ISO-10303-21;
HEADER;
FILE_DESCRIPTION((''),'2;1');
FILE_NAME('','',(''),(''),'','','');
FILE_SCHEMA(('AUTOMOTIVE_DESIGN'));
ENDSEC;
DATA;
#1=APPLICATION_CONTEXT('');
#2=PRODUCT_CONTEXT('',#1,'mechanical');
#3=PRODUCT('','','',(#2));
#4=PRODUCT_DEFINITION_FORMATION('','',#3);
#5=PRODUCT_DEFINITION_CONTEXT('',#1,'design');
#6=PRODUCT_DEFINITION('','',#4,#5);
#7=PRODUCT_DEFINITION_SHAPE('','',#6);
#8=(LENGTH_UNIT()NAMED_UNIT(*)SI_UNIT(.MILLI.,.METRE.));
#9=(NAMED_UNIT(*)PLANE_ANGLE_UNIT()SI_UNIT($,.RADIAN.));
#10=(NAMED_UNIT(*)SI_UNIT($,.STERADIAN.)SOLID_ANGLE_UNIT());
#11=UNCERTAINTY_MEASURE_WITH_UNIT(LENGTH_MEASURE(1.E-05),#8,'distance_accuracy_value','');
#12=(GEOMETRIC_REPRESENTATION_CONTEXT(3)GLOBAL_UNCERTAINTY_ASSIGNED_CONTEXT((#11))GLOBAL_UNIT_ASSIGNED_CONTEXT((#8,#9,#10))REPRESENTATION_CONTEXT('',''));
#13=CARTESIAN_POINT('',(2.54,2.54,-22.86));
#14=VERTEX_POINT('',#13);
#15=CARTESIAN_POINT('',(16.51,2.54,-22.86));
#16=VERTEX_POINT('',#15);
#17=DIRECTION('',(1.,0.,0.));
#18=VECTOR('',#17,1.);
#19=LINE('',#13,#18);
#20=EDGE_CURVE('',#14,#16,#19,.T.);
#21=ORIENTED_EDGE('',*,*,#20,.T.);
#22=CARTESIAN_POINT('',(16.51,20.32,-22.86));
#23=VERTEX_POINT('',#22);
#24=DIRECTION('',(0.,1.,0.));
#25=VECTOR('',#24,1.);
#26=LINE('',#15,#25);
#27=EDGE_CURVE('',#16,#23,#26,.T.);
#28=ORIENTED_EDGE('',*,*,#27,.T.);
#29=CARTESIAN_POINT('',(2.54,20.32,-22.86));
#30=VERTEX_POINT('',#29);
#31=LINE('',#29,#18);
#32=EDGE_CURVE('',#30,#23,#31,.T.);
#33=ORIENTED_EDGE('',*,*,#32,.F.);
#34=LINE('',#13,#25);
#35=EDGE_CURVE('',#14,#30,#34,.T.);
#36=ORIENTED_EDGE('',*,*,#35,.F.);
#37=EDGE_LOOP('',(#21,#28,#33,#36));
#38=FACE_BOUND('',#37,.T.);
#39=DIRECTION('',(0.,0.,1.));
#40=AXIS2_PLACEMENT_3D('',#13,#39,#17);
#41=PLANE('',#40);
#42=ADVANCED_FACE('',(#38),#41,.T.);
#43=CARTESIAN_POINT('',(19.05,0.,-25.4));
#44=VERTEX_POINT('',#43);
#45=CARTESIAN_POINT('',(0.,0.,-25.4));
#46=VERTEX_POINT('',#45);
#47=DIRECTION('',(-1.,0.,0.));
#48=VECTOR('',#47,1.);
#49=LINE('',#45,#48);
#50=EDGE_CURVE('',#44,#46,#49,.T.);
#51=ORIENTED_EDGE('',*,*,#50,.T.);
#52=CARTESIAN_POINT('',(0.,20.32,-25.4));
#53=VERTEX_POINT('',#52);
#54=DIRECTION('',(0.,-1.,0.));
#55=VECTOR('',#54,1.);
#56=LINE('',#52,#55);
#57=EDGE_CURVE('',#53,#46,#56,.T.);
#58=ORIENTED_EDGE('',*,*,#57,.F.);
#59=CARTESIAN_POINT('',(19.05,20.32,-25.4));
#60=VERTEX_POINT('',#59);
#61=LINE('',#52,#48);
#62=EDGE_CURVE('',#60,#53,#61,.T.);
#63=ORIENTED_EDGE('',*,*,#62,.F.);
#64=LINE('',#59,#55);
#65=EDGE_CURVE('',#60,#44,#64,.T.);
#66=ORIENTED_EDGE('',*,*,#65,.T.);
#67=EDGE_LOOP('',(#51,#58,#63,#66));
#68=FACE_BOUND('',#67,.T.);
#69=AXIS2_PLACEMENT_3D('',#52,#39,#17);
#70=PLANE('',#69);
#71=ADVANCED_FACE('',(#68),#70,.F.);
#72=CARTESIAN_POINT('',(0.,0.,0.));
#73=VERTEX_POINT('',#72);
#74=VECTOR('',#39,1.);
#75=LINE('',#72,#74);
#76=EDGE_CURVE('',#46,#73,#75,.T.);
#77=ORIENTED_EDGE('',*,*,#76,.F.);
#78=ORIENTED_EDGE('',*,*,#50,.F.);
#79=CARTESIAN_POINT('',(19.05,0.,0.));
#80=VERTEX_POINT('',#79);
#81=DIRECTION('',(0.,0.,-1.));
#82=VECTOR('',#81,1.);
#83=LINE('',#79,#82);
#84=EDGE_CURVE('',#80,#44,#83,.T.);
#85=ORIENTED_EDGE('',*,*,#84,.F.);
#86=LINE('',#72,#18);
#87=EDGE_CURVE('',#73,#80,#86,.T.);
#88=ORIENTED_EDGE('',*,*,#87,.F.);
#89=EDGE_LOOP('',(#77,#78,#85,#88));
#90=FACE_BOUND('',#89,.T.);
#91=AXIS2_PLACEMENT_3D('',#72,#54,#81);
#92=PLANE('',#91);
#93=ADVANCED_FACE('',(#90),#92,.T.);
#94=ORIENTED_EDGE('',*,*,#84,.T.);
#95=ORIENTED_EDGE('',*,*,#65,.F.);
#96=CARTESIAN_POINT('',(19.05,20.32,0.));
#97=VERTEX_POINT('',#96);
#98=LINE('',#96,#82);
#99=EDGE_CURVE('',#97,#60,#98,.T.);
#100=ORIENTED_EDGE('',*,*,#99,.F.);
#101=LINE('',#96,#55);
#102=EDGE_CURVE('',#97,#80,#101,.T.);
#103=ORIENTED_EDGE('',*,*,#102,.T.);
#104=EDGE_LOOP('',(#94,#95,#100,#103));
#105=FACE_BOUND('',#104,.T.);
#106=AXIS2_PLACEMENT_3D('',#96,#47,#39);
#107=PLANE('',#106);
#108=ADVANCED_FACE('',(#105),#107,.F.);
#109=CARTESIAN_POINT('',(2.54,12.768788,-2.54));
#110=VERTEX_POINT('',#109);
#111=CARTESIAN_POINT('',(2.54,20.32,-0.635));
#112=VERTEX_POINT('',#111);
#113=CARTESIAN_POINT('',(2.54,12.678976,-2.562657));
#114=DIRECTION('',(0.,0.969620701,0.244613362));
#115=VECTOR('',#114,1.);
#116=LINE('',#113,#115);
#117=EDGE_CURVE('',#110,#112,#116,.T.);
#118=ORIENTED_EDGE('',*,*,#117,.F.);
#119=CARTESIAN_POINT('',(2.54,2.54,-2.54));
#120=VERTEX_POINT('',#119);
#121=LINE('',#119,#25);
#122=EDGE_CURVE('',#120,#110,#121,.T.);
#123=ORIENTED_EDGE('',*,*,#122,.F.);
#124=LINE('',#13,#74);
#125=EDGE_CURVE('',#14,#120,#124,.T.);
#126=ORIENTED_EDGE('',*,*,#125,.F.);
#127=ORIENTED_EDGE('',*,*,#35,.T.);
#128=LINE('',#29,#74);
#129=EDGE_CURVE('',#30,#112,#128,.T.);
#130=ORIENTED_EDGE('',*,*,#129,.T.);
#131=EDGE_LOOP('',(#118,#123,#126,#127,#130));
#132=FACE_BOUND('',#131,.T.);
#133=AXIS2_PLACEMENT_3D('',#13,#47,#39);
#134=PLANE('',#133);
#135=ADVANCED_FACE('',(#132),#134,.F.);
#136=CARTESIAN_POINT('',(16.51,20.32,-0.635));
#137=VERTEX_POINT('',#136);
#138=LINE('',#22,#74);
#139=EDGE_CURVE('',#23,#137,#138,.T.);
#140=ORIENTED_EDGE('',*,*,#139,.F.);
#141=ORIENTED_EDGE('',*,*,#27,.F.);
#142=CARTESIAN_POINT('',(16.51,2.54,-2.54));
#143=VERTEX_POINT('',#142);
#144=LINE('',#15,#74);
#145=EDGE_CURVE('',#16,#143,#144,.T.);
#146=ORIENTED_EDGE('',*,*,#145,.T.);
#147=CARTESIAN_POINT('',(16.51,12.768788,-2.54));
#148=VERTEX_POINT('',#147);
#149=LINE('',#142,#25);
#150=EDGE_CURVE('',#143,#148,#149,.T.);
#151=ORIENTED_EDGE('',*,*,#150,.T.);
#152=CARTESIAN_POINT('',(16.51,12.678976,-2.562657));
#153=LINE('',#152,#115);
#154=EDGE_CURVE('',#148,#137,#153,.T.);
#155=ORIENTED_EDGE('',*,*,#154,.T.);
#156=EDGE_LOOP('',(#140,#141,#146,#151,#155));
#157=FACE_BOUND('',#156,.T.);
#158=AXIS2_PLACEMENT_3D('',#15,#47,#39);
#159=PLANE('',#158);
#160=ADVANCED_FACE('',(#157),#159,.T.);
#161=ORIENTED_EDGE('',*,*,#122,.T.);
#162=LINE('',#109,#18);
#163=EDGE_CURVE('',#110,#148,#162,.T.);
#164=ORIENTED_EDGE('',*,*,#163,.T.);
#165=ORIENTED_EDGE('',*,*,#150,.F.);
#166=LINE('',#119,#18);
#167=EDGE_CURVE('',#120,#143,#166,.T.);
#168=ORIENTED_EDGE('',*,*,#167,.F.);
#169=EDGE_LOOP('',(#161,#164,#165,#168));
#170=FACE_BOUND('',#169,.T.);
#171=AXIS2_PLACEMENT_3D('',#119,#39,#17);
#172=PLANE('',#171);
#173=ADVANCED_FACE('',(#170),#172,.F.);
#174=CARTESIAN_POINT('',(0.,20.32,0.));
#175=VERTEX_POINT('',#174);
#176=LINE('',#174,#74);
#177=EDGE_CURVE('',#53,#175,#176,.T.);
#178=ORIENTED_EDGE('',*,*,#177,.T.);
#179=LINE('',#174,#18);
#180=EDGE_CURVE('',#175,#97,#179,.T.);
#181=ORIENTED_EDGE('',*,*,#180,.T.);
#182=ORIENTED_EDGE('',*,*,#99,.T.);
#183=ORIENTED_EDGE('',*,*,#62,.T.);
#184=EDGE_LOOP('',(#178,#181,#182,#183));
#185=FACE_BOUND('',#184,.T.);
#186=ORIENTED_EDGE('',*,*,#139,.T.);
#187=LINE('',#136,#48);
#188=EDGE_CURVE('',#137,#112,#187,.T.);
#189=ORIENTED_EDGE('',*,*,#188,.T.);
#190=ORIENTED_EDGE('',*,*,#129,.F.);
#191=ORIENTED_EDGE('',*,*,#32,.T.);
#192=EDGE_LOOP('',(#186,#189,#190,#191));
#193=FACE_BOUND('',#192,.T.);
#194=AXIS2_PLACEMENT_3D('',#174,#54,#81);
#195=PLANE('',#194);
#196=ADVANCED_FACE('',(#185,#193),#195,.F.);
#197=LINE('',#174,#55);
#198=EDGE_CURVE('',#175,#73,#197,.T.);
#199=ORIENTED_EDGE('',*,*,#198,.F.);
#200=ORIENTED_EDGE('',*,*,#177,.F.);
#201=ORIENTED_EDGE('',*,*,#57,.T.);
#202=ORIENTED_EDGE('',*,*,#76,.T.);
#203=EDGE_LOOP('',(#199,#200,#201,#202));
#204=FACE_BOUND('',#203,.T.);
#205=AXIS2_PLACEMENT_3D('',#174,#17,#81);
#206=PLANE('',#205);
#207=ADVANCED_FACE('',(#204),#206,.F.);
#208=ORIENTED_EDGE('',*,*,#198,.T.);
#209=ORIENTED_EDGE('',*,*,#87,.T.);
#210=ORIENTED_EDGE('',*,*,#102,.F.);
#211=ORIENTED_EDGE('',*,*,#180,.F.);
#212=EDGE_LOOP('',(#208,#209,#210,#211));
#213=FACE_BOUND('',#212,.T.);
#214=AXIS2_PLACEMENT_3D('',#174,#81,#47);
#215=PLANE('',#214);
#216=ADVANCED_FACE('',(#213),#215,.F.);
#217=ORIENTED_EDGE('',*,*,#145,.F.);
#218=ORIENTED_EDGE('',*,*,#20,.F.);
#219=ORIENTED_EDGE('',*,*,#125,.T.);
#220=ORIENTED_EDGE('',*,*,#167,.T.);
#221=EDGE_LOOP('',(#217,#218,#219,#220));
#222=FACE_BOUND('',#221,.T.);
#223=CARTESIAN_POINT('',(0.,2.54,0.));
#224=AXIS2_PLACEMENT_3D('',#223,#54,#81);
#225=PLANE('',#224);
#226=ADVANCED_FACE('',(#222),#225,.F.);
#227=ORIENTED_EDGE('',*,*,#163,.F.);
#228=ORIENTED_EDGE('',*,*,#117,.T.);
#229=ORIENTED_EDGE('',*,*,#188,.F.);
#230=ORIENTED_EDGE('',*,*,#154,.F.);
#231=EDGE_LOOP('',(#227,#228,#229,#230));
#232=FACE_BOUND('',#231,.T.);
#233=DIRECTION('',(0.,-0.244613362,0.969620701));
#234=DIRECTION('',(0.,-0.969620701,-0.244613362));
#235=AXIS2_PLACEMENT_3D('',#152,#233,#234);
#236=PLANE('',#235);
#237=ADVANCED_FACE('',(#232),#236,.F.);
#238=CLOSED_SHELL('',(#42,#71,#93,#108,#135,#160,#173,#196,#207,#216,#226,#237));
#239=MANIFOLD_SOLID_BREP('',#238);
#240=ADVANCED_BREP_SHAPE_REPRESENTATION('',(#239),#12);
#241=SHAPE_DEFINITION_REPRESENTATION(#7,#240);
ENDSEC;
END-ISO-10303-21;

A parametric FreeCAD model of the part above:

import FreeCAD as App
import Part
import Sketcher
from FreeCAD import Vector
Q = App.Units.Quantity

doc = App.newDocument("Part")
body = doc.addObject("PartDesign::Body", "Body")

sketch1 = doc.addObject("Sketcher::SketchObject", "Sketch")
body.addObject(sketch1)
sketch1.AttachmentSupport = (doc.XZ_Plane, [""])
sketch1.MapMode = "FlatFace"
sketch1.addGeometry([
    Part.LineSegment(Vector(0, -25.4, 0), Vector(0, 0, 0)),
    Part.LineSegment(Vector(0, 0, 0), Vector(19.05, 0, 0)),
    Part.LineSegment(Vector(19.05, 0, 0), Vector(19.05, -25.4, 0)),
    Part.LineSegment(Vector(19.05, -25.4, 0), Vector(0, -25.4, 0)),
], False)
sketch1.addConstraint([
    Sketcher.Constraint("Coincident", 0, 2, 1, 1),
    Sketcher.Constraint("Coincident", 1, 2, 2, 1),
    Sketcher.Constraint("Coincident", 2, 2, 3, 1),
    Sketcher.Constraint("Coincident", 3, 2, 0, 1),
    Sketcher.Constraint("Vertical", 0),
    Sketcher.Constraint("Horizontal", 1),
    Sketcher.Constraint("Vertical", 2),
    Sketcher.Constraint("Horizontal", 3),
    Sketcher.Constraint("Coincident", 0, 2, -1, 1),
    Sketcher.Constraint("DistanceY", 0, 1, 0, 2, Q("1 in")),
    Sketcher.Constraint("DistanceX", 1, 1, 1, 2, Q("0.75 in")),
])
pad1 = doc.addObject("PartDesign::Pad", "Pad")
body.addObject(pad1)
pad1.Profile = sketch1
pad1.Length = Q("0.8 in")
pad1.Reversed = True

sketch2 = doc.addObject("Sketcher::SketchObject", "Sketch001")
body.addObject(sketch2)
sketch2.AttachmentSupport = (doc.XZ_Plane, [""])
sketch2.MapMode = "FlatFace"
sketch2.AttachmentOffset = App.Placement(Vector(0, 0, -0.8 * 25.4), App.Rotation())
sketch2.addGeometry([
    Part.LineSegment(Vector(2.54, -22.86, 0), Vector(2.54, -2.54, 0)),
    Part.LineSegment(Vector(2.54, -2.54, 0), Vector(16.51, -2.54, 0)),
    Part.LineSegment(Vector(16.51, -2.54, 0), Vector(16.51, -22.86, 0)),
    Part.LineSegment(Vector(16.51, -22.86, 0), Vector(2.54, -22.86, 0)),
], False)
sketch2.addConstraint([
    Sketcher.Constraint("Coincident", 0, 2, 1, 1),
    Sketcher.Constraint("Coincident", 1, 2, 2, 1),
    Sketcher.Constraint("Coincident", 2, 2, 3, 1),
    Sketcher.Constraint("Coincident", 3, 2, 0, 1),
    Sketcher.Constraint("Vertical", 0),
    Sketcher.Constraint("Horizontal", 1),
    Sketcher.Constraint("Vertical", 2),
    Sketcher.Constraint("Horizontal", 3),
    Sketcher.Constraint("DistanceY", 0, 1, 0, 2, Q("0.8 in")),
    Sketcher.Constraint("DistanceX", 1, 1, 1, 2, Q("0.55 in")),
    Sketcher.Constraint("DistanceX", -1, 1, 0, 2, Q("0.1 in")),
    Sketcher.Constraint("DistanceY", 0, 2, -1, 1, Q("0.1 in")),
])
pocket1 = doc.addObject("PartDesign::Pocket", "Pocket")
body.addObject(pocket1)
pocket1.Profile = sketch2
pocket1.Length = Q("0.7 in")
pocket1.Reversed = True

sketch3 = doc.addObject("Sketcher::SketchObject", "Sketch002")
body.addObject(sketch3)
sketch3.AttachmentSupport = (doc.YZ_Plane, [""])
sketch3.MapMode = "FlatFace"
sketch3.AttachmentOffset = App.Placement(Vector(0, 0, 0.1 * 25.4), App.Rotation())
sketch3.addGeometry([
    Part.LineSegment(Vector(20.32, -0.635, 0), Vector(20.32, -2.562657, 0)),
    Part.LineSegment(Vector(20.32, -2.562657, 0), Vector(12.678976, -2.562657, 0)),
    Part.LineSegment(Vector(12.678976, -2.562657, 0), Vector(20.32, -0.635, 0)),
], False)
sketch3.addConstraint([
    Sketcher.Constraint("Coincident", 0, 2, 1, 1),
    Sketcher.Constraint("Coincident", 1, 2, 2, 1),
    Sketcher.Constraint("Coincident", 2, 2, 0, 1),
    Sketcher.Constraint("Vertical", 0),
    Sketcher.Constraint("Horizontal", 1),
    Sketcher.Constraint("DistanceX", -1, 1, 0, 2, Q("0.8 in")),
    Sketcher.Constraint("DistanceY", 2, 2, -1, 1, Q("0.025 in")),
    Sketcher.Constraint("DistanceX", 1, 2, 1, 1, 7.641024),
    Sketcher.Constraint("DistanceY", 0, 2, 0, 1, 1.927657),
])
pocket2 = doc.addObject("PartDesign::Pocket", "Pocket001")
body.addObject(pocket2)
pocket2.Profile = sketch3
pocket2.Length = Q("0.55 in")
pocket2.Reversed = True

doc.recompute()
